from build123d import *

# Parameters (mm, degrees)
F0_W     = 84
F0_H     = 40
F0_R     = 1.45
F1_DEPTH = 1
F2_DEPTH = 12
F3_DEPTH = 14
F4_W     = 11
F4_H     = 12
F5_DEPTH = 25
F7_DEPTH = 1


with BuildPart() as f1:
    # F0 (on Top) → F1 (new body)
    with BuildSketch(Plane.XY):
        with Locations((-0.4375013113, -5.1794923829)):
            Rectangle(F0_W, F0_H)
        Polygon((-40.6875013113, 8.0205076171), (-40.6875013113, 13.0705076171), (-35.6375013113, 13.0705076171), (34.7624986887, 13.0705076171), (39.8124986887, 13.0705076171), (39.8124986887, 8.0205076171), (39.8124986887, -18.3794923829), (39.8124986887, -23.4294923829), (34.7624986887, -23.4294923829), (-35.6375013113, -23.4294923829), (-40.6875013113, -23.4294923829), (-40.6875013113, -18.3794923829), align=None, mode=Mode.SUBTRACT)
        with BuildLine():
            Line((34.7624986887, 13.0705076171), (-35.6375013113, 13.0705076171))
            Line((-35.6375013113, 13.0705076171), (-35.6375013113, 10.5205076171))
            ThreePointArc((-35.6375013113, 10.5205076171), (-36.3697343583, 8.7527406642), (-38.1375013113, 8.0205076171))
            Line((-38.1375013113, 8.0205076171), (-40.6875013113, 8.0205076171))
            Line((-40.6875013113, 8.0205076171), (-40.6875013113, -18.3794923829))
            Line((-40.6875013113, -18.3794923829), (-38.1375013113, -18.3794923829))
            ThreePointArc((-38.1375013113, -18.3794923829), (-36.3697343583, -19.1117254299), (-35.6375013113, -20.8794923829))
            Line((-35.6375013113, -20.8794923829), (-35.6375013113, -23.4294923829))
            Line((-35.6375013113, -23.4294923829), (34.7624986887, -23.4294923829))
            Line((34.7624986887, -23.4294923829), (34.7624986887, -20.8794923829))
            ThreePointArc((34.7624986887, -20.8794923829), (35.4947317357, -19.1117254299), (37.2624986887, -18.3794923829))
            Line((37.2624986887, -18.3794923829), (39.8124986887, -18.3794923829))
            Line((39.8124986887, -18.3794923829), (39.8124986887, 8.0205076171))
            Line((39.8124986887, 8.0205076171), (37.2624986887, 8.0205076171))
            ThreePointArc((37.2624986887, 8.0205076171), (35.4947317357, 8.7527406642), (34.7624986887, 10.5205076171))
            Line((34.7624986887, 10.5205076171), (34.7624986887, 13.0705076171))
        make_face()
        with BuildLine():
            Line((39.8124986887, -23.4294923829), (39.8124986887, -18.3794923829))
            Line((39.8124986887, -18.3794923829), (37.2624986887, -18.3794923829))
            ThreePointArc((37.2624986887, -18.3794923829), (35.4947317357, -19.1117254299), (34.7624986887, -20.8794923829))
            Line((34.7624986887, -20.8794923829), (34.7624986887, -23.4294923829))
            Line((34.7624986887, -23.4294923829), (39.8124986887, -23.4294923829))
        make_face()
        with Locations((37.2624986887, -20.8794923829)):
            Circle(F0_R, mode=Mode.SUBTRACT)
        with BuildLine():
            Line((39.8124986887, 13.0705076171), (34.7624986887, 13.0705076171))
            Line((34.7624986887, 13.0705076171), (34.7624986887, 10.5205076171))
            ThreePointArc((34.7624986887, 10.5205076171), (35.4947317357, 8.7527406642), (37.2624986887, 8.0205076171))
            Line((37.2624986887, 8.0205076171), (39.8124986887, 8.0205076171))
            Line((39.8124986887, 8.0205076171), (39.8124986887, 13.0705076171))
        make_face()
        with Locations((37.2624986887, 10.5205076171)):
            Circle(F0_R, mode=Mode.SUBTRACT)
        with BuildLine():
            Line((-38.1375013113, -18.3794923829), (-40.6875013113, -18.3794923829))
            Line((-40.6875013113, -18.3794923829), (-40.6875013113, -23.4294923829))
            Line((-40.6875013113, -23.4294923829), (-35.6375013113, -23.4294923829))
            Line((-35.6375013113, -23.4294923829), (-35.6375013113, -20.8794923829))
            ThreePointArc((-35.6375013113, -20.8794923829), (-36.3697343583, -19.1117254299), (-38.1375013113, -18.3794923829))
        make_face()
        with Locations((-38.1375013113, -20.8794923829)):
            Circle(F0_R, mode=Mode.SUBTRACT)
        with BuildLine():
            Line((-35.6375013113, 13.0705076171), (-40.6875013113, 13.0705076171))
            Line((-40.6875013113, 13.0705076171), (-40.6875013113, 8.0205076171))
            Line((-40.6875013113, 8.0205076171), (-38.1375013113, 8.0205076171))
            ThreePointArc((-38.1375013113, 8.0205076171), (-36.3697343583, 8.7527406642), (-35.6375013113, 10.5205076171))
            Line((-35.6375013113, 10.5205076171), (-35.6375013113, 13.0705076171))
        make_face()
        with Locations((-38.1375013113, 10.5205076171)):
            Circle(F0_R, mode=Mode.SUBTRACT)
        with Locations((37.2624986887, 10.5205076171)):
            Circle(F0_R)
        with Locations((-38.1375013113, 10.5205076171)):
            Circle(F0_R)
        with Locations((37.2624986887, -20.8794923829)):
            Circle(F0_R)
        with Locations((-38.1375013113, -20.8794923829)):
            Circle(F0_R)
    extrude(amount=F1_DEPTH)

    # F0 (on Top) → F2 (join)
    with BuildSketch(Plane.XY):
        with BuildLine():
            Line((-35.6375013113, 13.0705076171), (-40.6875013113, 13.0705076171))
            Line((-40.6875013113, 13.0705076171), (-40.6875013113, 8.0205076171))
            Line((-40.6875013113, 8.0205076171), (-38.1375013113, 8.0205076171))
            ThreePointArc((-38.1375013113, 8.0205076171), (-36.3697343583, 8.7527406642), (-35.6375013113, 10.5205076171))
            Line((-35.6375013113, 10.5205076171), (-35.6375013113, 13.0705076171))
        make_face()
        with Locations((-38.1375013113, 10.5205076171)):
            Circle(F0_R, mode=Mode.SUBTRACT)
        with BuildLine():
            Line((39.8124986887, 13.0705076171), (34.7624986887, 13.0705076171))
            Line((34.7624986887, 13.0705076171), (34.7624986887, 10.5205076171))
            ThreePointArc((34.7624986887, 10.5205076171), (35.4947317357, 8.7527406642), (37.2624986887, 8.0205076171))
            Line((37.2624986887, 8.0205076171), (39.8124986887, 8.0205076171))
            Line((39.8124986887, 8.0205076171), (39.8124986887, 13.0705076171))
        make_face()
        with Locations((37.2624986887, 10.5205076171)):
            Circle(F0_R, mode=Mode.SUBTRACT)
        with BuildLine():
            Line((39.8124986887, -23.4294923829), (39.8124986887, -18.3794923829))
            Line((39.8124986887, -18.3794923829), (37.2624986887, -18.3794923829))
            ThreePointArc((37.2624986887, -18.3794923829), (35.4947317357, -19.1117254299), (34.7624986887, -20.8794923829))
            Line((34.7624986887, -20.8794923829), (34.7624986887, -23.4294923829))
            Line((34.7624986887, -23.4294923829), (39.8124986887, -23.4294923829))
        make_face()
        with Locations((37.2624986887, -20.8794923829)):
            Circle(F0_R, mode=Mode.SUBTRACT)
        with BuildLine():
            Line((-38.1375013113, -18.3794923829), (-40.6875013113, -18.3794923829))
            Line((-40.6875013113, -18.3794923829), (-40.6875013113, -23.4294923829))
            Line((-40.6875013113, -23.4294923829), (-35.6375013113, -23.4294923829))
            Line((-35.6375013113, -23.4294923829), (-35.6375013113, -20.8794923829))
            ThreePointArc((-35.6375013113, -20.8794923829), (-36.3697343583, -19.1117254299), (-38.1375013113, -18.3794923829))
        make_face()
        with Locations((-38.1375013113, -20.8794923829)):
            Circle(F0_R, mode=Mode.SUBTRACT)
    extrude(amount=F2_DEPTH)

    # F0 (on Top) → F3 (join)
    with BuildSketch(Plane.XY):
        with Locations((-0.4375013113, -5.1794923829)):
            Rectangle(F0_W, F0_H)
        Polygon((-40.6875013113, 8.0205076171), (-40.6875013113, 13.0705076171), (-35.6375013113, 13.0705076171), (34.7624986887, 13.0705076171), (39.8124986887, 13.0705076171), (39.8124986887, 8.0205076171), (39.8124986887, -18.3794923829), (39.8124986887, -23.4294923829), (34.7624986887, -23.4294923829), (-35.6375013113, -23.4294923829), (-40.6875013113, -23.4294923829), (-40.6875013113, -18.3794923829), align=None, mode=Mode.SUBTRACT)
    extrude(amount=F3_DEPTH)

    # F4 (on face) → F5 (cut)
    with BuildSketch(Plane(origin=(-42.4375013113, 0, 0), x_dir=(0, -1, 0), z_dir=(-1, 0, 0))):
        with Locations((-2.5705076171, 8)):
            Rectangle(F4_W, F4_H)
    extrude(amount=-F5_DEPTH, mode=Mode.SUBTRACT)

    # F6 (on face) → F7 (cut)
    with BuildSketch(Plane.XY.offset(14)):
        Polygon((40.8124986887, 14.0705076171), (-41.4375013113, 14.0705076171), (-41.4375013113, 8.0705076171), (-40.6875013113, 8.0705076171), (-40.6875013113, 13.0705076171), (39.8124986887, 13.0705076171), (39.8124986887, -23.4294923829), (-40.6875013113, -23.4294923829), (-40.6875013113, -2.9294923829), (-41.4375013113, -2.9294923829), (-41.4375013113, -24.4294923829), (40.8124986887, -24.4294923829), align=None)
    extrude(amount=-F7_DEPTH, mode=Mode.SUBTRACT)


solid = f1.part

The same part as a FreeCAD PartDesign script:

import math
import FreeCAD as App
import Part
import Sketcher
from FreeCAD import Vector


def add_polygon(sketch, points):
    """Adds a closed chain of lines whose ends are joined by coincident constraints."""
    first, n = sketch.GeometryCount, len(points)
    for a, b in zip(points, points[1:] + points[:1]):
        sketch.addGeometry(Part.LineSegment(App.Vector(*a, 0), App.Vector(*b, 0)), False)
    for i in range(n):
        sketch.addConstraint(Sketcher.Constraint("Coincident", first + i, 2, first + (i + 1) % n, 1))

doc = App.newDocument("Part")
body = doc.addObject("PartDesign::Body", "Body")

# Sketch on XY plane
sketch1 = body.newObject("Sketcher::SketchObject", "Sketch")
sketch1.AttachmentSupport = (doc.getObject("XY_Plane"), [""])
sketch1.MapMode = "FlatFace"
add_polygon(sketch1, [(-42.437501, 14.820508), (-42.437501, -25.179492), (41.562499, -25.179492), (41.562499, 14.820508)])  # lines 0-3
sketch1.addConstraint(Sketcher.Constraint("Vertical", 0))
sketch1.addConstraint(Sketcher.Constraint("Horizontal", 1))
sketch1.addConstraint(Sketcher.Constraint("Vertical", 2))
sketch1.addConstraint(Sketcher.Constraint("Horizontal", 3))
sketch1.addConstraint(Sketcher.Constraint("DistanceX", 1, 1, 1, 2, 84.0))
sketch1.addConstraint(Sketcher.Constraint("DistanceY", 0, 2, 0, 1, 40.0))
sketch1.addConstraint(Sketcher.Constraint("DistanceX", 0, 2, -1, 1, 42.437501))
sketch1.addConstraint(Sketcher.Constraint("DistanceY", 0, 2, -1, 1, 25.179492))
pad1 = body.newObject("PartDesign::Pad", "Pad")
pad1.Profile = sketch1
pad1.Length = 1

# Sketch on XY plane
sketch2 = body.newObject("Sketcher::SketchObject", "Sketch001")
sketch2.AttachmentSupport = (doc.getObject("XY_Plane"), [""])
sketch2.MapMode = "FlatFace"
sketch2.addGeometry(Part.LineSegment(Vector(-35.637501, 13.070508, 0), Vector(-40.687501, 13.070508, 0)), False)
sketch2.addGeometry(Part.LineSegment(Vector(-40.687501, 13.070508, 0), Vector(-40.687501, 8.020508, 0)), False)
sketch2.addGeometry(Part.LineSegment(Vector(-40.687501, 8.020508, 0), Vector(-38.137501, 8.020508, 0)), False)
sketch2.addGeometry(Part.ArcOfCircle(Part.Circle(Vector(-38.137501, 10.520508, 0), Vector(0, 0, 1), 2.5), math.radians(-90), math.radians(0)), False)
sketch2.addGeometry(Part.LineSegment(Vector(-35.637501, 10.520508, 0), Vector(-35.637501, 13.070508, 0)), False)
sketch2.addGeometry(Part.Circle(Vector(-38.137501, 10.520508, 0), Vector(0, 0, 1), 1.45), False)
sketch2.addGeometry(Part.LineSegment(Vector(39.812499, 13.070508, 0), Vector(34.762499, 13.070508, 0)), False)
sketch2.addGeometry(Part.LineSegment(Vector(34.762499, 13.070508, 0), Vector(34.762499, 10.520508, 0)), False)
sketch2.addGeometry(Part.ArcOfCircle(Part.Circle(Vector(37.262499, 10.520508, 0), Vector(0, 0, 1), 2.5), math.radians(180), math.radians(270)), False)
sketch2.addGeometry(Part.LineSegment(Vector(37.262499, 8.020508, 0), Vector(39.812499, 8.020508, 0)), False)
sketch2.addGeometry(Part.LineSegment(Vector(39.812499, 8.020508, 0), Vector(39.812499, 13.070508, 0)), False)
sketch2.addGeometry(Part.Circle(Vector(37.262499, 10.520508, 0), Vector(0, 0, 1), 1.45), False)
sketch2.addGeometry(Part.LineSegment(Vector(39.812499, -23.429492, 0), Vector(39.812499, -18.379492, 0)), False)
sketch2.addGeometry(Part.LineSegment(Vector(39.812499, -18.379492, 0), Vector(37.262499, -18.379492, 0)), False)
sketch2.addGeometry(Part.ArcOfCircle(Part.Circle(Vector(37.262499, -20.879492, 0), Vector(0, 0, 1), 2.5), math.radians(90), math.radians(180)), False)
sketch2.addGeometry(Part.LineSegment(Vector(34.762499, -20.879492, 0), Vector(34.762499, -23.429492, 0)), False)
sketch2.addGeometry(Part.LineSegment(Vector(34.762499, -23.429492, 0), Vector(39.812499, -23.429492, 0)), False)
sketch2.addGeometry(Part.Circle(Vector(37.262499, -20.879492, 0), Vector(0, 0, 1), 1.45), False)
sketch2.addGeometry(Part.LineSegment(Vector(-38.137501, -18.379492, 0), Vector(-40.687501, -18.379492, 0)), False)
sketch2.addGeometry(Part.LineSegment(Vector(-40.687501, -18.379492, 0), Vector(-40.687501, -23.429492, 0)), False)
sketch2.addGeometry(Part.LineSegment(Vector(-40.687501, -23.429492, 0), Vector(-35.637501, -23.429492, 0)), False)
sketch2.addGeometry(Part.LineSegment(Vector(-35.637501, -23.429492, 0), Vector(-35.637501, -20.879492, 0)), False)
sketch2.addGeometry(Part.ArcOfCircle(Part.Circle(Vector(-38.137501, -20.879492, 0), Vector(0, 0, 1), 2.5), math.radians(0), math.radians(90)), False)
sketch2.addGeometry(Part.Circle(Vector(-38.137501, -20.879492, 0), Vector(0, 0, 1), 1.45), False)
sketch2.addConstraint(Sketcher.Constraint("Coincident", 0, 2, 1, 1))
sketch2.addConstraint(Sketcher.Constraint("Coincident", 1, 2, 2, 1))
sketch2.addConstraint(Sketcher.Constraint("Tangent", 2, 2, 3, 1))
sketch2.addConstraint(Sketcher.Constraint("Tangent", 3, 2, 4, 1))
sketch2.addConstraint(Sketcher.Constraint("Coincident", 4, 2, 0, 1))
sketch2.addConstraint(Sketcher.Constraint("Coincident", 6, 2, 7, 1))
sketch2.addConstraint(Sketcher.Constraint("Tangent", 7, 2, 8, 1))
sketch2.addConstraint(Sketcher.Constraint("Tangent", 8, 2, 9, 1))
sketch2.addConstraint(Sketcher.Constraint("Coincident", 9, 2, 10, 1))
sketch2.addConstraint(Sketcher.Constraint("Coincident", 10, 2, 6, 1))
sketch2.addConstraint(Sketcher.Constraint("Coincident", 12, 2, 13, 1))
sketch2.addConstraint(Sketcher.Constraint("Tangent", 13, 2, 14, 1))
sketch2.addConstraint(Sketcher.Constraint("Tangent", 14, 2, 15, 1))
sketch2.addConstraint(Sketcher.Constraint("Coincident", 15, 2, 16, 1))
sketch2.addConstraint(Sketcher.Constraint("Coincident", 16, 2, 12, 1))
sketch2.addConstraint(Sketcher.Constraint("Coincident", 18, 2, 19, 1))
sketch2.addConstraint(Sketcher.Constraint("Coincident", 19, 2, 20, 1))
sketch2.addConstraint(Sketcher.Constraint("Coincident", 20, 2, 21, 1))
sketch2.addConstraint(Sketcher.Constraint("Tangent", 21, 2, 22, 1))
sketch2.addConstraint(Sketcher.Constraint("Tangent", 22, 2, 18, 1))
sketch2.addConstraint(Sketcher.Constraint("Horizontal", 0))
sketch2.addConstraint(Sketcher.Constraint("Vertical", 1))
sketch2.addConstraint(Sketcher.Constraint("Horizontal", 2))
sketch2.addConstraint(Sketcher.Constraint("Vertical", 4))
sketch2.addConstraint(Sketcher.Constraint("Horizontal", 6))
sketch2.addConstraint(Sketcher.Constraint("Vertical", 7))
sketch2.addConstraint(Sketcher.Constraint("Horizontal", 9))
sketch2.addConstraint(Sketcher.Constraint("Vertical", 10))
sketch2.addConstraint(Sketcher.Constraint("Vertical", 12))
sketch2.addConstraint(Sketcher.Constraint("Horizontal", 13))
sketch2.addConstraint(Sketcher.Constraint("Vertical", 15))
sketch2.addConstraint(Sketcher.Constraint("Horizontal", 16))
sketch2.addConstraint(Sketcher.Constraint("Horizontal", 18))
sketch2.addConstraint(Sketcher.Constraint("Vertical", 19))
sketch2.addConstraint(Sketcher.Constraint("Horizontal", 20))
sketch2.addConstraint(Sketcher.Constraint("Vertical", 21))
sketch2.addConstraint(Sketcher.Constraint("Coincident", 5, 3, 3, 3))
sketch2.addConstraint(Sketcher.Constraint("Coincident", 11, 3, 8, 3))
sketch2.addConstraint(Sketcher.Constraint("Coincident", 17, 3, 14, 3))
sketch2.addConstraint(Sketcher.Constraint("Coincident", 23, 3, 22, 3))
sketch2.addConstraint(Sketcher.Constraint("Equal", 3, 8))
sketch2.addConstraint(Sketcher.Constraint("Equal", 5, 11))
sketch2.addConstraint(Sketcher.Constraint("Equal", 8, 14))
sketch2.addConstraint(Sketcher.Constraint("Equal", 11, 17))
sketch2.addConstraint(Sketcher.Constraint("Equal", 14, 22))
sketch2.addConstraint(Sketcher.Constraint("Equal", 17, 23))
sketch2.addConstraint(Sketcher.Constraint("Horizontal", 5, 3, 8, 3))
sketch2.addConstraint(Sketcher.Constraint("Horizontal", 17, 3, 22, 3))
sketch2.addConstraint(Sketcher.Constraint("Horizontal", 4, 2, 6, 2))
sketch2.addConstraint(Sketcher.Constraint("Horizontal", 16, 2, 19, 2))
sketch2.addConstraint(Sketcher.Constraint("Vertical", 11, 3, 14, 3))
sketch2.addConstraint(Sketcher.Constraint("Vertical", 5, 3, 22, 3))
sketch2.addConstraint(Sketcher.Constraint("Vertical", 10, 2, 12, 2))
sketch2.addConstraint(Sketcher.Constraint("Vertical", 1, 2, 18, 2))
sketch2.addConstraint(Sketcher.Constraint("Equal", 0, 6))
sketch2.addConstraint(Sketcher.Constraint("Equal", 20, 1))
sketch2.addConstraint(Sketcher.Constraint("Equal", 10, 12))
sketch2.addConstraint(Sketcher.Constraint("Diameter", 5, 2.9))
sketch2.addConstraint(Sketcher.Constraint("Radius", 3, 2.5))
sketch2.addConstraint(Sketcher.Constraint("DistanceX", 0, 2, 0, 1, 5.05))
sketch2.addConstraint(Sketcher.Constraint("DistanceX", 3, 3, 8, 3, 75.4))
sketch2.addConstraint(Sketcher.Constraint("DistanceY", 14, 3, 8, 3, 31.4))
sketch2.addConstraint(Sketcher.Constraint("DistanceX", 3, 3, -1, 1, 38.137501))
sketch2.addConstraint(Sketcher.Constraint("DistanceY", -1, 1, 3, 3, 10.520508))
pad2 = body.newObject("PartDesign::Pad", "Pad001")
pad2.Profile = sketch2
pad2.Length = 12

# Sketch on XY plane
sketch3 = body.newObject("Sketcher::SketchObject", "Sketch002")
sketch3.AttachmentSupport = (doc.getObject("XY_Plane"), [""])
sketch3.MapMode = "FlatFace"
add_polygon(sketch3, [(-42.437501, 14.820508), (-42.437501, -25.179492), (41.562499, -25.179492), (41.562499, 14.820508)])  # lines 0-3
add_polygon(sketch3, [(-40.687501, -23.429492), (-40.687501, 13.070508), (39.812499, 13.070508), (39.812499, -23.429492)])  # lines 4-7
sketch3.addConstraint(Sketcher.Constraint("Vertical", 0))
sketch3.addConstraint(Sketcher.Constraint("Horizontal", 1))
sketch3.addConstraint(Sketcher.Constraint("Vertical", 2))
sketch3.addConstraint(Sketcher.Constraint("Horizontal", 3))
sketch3.addConstraint(Sketcher.Constraint("Vertical", 4))
sketch3.addConstraint(Sketcher.Constraint("Horizontal", 5))
sketch3.addConstraint(Sketcher.Constraint("Vertical", 6))
sketch3.addConstraint(Sketcher.Constraint("Horizontal", 7))
sketch3.addConstraint(Sketcher.Constraint("DistanceX", 1, 1, 1, 2, 84.0))
sketch3.addConstraint(Sketcher.Constraint("DistanceY", 0, 2, 0, 1, 40.0))
sketch3.addConstraint(Sketcher.Constraint("DistanceX", 5, 1, 5, 2, 80.5))
sketch3.addConstraint(Sketcher.Constraint("DistanceY", 4, 1, 4, 2, 36.5))
sketch3.addConstraint(Sketcher.Constraint("DistanceX", 3, 2, 4, 2, 1.75))
sketch3.addConstraint(Sketcher.Constraint("DistanceY", 4, 2, 3, 2, 1.75))
sketch3.addConstraint(Sketcher.Constraint("DistanceX", 0, 2, -1, 1, 42.437501))
sketch3.addConstraint(Sketcher.Constraint("DistanceY", 0, 2, -1, 1, 25.179492))
pad3 = body.newObject("PartDesign::Pad", "Pad002")
pad3.Profile = sketch3
pad3.Length = 14

# Sketch on YZ plane
sketch4 = body.newObject("Sketcher::SketchObject", "Sketch003")
sketch4.AttachmentSupport = (doc.getObject("YZ_Plane"), [""])
sketch4.MapMode = "FlatFace"
sketch4.AttachmentOffset = App.Placement(Vector(0, 0, -42.437501), App.Rotation())
add_polygon(sketch4, [(8.070508, 14), (8.070508, 2), (-2.929492, 2), (-2.929492, 14)])  # lines 0-3
sketch4.addConstraint(Sketcher.Constraint("Vertical", 0))
sketch4.addConstraint(Sketcher.Constraint("Horizontal", 1))
sketch4.addConstraint(Sketcher.Constraint("Vertical", 2))
sketch4.addConstraint(Sketcher.Constraint("Horizontal", 3))
sketch4.addConstraint(Sketcher.Constraint("DistanceX", 1, 2, 1, 1, 11.0))
sketch4.addConstraint(Sketcher.Constraint("DistanceY", 0, 2, 0, 1, 12.0))
sketch4.addConstraint(Sketcher.Constraint("DistanceY", -1, 1, 0, 2, 2.0))
sketch4.addConstraint(Sketcher.Constraint("DistanceX", -1, 1, 0, 2, 8.070508))
pocket1 = body.newObject("PartDesign::Pocket", "Pocket")
pocket1.Profile = sketch4
pocket1.Length = 25
pocket1.Reversed = True

# Sketch on XY plane
sketch5 = body.newObject("Sketcher::SketchObject", "Sketch004")
sketch5.AttachmentSupport = (doc.getObject("XY_Plane"), [""])
sketch5.MapMode = "FlatFace"
sketch5.AttachmentOffset = App.Placement(Vector(0, 0, 14), App.Rotation())
add_polygon(sketch5, [(40.812499, 14.070508), (-41.437501, 14.070508), (-41.437501, 8.070508), (-40.687501, 8.070508), (-40.687501, 13.070508), (39.812499, 13.070508), (39.812499, -23.429492), (-40.687501, -23.429492), (-40.687501, -2.929492), (-41.437501, -2.929492), (-41.437501, -24.429492), (40.812499, -24.429492)])  # lines 0-11
sketch5.addConstraint(Sketcher.Constraint("Horizontal", 0))
sketch5.addConstraint(Sketcher.Constraint("Vertical", 1))
sketch5.addConstraint(Sketcher.Constraint("Horizontal", 2))
sketch5.addConstraint(Sketcher.Constraint("Vertical", 3))
sketch5.addConstraint(Sketcher.Constraint("Horizontal", 4))
sketch5.addConstraint(Sketcher.Constraint("Vertical", 5))
sketch5.addConstraint(Sketcher.Constraint("Horizontal", 6))
sketch5.addConstraint(Sketcher.Constraint("Vertical", 7))
sketch5.addConstraint(Sketcher.Constraint("Horizontal", 8))
sketch5.addConstraint(Sketcher.Constraint("Vertical", 9))
sketch5.addConstraint(Sketcher.Constraint("Horizontal", 10))
sketch5.addConstraint(Sketcher.Constraint("Vertical", 11))
sketch5.addConstraint(Sketcher.Constraint("Vertical", 3, 2, 6, 2))
sketch5.addConstraint(Sketcher.Constraint("Vertical", 1, 2, 8, 2))
sketch5.addConstraint(Sketcher.Constraint("DistanceY", 1, 2, 1, 1, 6.0))
sketch5.addConstraint(Sketcher.Constraint("DistanceY", 3, 1, 3, 2, 5.0))
sketch5.addConstraint(Sketcher.Constraint("DistanceX", 4, 1, 4, 2, 80.5))
sketch5.addConstraint(Sketcher.Constraint("DistanceY", 5, 2, 5, 1, 36.5))
sketch5.addConstraint(Sketcher.Constraint("DistanceY", 7, 1, 7, 2, 20.5))
sketch5.addConstraint(Sketcher.Constraint("DistanceY", 9, 2, 9, 1, 21.5))
sketch5.addConstraint(Sketcher.Constraint("DistanceX", 5, 2, 10, 2, 1.0))
sketch5.addConstraint(Sketcher.Constraint("DistanceX", 0, 2, 0, 1, 82.25))
sketch5.addConstraint(Sketcher.Constraint("DistanceX", 0, 2, -1, 1, 41.437501))
sketch5.addConstraint(Sketcher.Constraint("DistanceY", -1, 1, 0, 2, 14.070508))
pocket2 = body.newObject("PartDesign::Pocket", "Pocket001")
pocket2.Profile = sketch5
pocket2.Length = 1

doc.recompute()
